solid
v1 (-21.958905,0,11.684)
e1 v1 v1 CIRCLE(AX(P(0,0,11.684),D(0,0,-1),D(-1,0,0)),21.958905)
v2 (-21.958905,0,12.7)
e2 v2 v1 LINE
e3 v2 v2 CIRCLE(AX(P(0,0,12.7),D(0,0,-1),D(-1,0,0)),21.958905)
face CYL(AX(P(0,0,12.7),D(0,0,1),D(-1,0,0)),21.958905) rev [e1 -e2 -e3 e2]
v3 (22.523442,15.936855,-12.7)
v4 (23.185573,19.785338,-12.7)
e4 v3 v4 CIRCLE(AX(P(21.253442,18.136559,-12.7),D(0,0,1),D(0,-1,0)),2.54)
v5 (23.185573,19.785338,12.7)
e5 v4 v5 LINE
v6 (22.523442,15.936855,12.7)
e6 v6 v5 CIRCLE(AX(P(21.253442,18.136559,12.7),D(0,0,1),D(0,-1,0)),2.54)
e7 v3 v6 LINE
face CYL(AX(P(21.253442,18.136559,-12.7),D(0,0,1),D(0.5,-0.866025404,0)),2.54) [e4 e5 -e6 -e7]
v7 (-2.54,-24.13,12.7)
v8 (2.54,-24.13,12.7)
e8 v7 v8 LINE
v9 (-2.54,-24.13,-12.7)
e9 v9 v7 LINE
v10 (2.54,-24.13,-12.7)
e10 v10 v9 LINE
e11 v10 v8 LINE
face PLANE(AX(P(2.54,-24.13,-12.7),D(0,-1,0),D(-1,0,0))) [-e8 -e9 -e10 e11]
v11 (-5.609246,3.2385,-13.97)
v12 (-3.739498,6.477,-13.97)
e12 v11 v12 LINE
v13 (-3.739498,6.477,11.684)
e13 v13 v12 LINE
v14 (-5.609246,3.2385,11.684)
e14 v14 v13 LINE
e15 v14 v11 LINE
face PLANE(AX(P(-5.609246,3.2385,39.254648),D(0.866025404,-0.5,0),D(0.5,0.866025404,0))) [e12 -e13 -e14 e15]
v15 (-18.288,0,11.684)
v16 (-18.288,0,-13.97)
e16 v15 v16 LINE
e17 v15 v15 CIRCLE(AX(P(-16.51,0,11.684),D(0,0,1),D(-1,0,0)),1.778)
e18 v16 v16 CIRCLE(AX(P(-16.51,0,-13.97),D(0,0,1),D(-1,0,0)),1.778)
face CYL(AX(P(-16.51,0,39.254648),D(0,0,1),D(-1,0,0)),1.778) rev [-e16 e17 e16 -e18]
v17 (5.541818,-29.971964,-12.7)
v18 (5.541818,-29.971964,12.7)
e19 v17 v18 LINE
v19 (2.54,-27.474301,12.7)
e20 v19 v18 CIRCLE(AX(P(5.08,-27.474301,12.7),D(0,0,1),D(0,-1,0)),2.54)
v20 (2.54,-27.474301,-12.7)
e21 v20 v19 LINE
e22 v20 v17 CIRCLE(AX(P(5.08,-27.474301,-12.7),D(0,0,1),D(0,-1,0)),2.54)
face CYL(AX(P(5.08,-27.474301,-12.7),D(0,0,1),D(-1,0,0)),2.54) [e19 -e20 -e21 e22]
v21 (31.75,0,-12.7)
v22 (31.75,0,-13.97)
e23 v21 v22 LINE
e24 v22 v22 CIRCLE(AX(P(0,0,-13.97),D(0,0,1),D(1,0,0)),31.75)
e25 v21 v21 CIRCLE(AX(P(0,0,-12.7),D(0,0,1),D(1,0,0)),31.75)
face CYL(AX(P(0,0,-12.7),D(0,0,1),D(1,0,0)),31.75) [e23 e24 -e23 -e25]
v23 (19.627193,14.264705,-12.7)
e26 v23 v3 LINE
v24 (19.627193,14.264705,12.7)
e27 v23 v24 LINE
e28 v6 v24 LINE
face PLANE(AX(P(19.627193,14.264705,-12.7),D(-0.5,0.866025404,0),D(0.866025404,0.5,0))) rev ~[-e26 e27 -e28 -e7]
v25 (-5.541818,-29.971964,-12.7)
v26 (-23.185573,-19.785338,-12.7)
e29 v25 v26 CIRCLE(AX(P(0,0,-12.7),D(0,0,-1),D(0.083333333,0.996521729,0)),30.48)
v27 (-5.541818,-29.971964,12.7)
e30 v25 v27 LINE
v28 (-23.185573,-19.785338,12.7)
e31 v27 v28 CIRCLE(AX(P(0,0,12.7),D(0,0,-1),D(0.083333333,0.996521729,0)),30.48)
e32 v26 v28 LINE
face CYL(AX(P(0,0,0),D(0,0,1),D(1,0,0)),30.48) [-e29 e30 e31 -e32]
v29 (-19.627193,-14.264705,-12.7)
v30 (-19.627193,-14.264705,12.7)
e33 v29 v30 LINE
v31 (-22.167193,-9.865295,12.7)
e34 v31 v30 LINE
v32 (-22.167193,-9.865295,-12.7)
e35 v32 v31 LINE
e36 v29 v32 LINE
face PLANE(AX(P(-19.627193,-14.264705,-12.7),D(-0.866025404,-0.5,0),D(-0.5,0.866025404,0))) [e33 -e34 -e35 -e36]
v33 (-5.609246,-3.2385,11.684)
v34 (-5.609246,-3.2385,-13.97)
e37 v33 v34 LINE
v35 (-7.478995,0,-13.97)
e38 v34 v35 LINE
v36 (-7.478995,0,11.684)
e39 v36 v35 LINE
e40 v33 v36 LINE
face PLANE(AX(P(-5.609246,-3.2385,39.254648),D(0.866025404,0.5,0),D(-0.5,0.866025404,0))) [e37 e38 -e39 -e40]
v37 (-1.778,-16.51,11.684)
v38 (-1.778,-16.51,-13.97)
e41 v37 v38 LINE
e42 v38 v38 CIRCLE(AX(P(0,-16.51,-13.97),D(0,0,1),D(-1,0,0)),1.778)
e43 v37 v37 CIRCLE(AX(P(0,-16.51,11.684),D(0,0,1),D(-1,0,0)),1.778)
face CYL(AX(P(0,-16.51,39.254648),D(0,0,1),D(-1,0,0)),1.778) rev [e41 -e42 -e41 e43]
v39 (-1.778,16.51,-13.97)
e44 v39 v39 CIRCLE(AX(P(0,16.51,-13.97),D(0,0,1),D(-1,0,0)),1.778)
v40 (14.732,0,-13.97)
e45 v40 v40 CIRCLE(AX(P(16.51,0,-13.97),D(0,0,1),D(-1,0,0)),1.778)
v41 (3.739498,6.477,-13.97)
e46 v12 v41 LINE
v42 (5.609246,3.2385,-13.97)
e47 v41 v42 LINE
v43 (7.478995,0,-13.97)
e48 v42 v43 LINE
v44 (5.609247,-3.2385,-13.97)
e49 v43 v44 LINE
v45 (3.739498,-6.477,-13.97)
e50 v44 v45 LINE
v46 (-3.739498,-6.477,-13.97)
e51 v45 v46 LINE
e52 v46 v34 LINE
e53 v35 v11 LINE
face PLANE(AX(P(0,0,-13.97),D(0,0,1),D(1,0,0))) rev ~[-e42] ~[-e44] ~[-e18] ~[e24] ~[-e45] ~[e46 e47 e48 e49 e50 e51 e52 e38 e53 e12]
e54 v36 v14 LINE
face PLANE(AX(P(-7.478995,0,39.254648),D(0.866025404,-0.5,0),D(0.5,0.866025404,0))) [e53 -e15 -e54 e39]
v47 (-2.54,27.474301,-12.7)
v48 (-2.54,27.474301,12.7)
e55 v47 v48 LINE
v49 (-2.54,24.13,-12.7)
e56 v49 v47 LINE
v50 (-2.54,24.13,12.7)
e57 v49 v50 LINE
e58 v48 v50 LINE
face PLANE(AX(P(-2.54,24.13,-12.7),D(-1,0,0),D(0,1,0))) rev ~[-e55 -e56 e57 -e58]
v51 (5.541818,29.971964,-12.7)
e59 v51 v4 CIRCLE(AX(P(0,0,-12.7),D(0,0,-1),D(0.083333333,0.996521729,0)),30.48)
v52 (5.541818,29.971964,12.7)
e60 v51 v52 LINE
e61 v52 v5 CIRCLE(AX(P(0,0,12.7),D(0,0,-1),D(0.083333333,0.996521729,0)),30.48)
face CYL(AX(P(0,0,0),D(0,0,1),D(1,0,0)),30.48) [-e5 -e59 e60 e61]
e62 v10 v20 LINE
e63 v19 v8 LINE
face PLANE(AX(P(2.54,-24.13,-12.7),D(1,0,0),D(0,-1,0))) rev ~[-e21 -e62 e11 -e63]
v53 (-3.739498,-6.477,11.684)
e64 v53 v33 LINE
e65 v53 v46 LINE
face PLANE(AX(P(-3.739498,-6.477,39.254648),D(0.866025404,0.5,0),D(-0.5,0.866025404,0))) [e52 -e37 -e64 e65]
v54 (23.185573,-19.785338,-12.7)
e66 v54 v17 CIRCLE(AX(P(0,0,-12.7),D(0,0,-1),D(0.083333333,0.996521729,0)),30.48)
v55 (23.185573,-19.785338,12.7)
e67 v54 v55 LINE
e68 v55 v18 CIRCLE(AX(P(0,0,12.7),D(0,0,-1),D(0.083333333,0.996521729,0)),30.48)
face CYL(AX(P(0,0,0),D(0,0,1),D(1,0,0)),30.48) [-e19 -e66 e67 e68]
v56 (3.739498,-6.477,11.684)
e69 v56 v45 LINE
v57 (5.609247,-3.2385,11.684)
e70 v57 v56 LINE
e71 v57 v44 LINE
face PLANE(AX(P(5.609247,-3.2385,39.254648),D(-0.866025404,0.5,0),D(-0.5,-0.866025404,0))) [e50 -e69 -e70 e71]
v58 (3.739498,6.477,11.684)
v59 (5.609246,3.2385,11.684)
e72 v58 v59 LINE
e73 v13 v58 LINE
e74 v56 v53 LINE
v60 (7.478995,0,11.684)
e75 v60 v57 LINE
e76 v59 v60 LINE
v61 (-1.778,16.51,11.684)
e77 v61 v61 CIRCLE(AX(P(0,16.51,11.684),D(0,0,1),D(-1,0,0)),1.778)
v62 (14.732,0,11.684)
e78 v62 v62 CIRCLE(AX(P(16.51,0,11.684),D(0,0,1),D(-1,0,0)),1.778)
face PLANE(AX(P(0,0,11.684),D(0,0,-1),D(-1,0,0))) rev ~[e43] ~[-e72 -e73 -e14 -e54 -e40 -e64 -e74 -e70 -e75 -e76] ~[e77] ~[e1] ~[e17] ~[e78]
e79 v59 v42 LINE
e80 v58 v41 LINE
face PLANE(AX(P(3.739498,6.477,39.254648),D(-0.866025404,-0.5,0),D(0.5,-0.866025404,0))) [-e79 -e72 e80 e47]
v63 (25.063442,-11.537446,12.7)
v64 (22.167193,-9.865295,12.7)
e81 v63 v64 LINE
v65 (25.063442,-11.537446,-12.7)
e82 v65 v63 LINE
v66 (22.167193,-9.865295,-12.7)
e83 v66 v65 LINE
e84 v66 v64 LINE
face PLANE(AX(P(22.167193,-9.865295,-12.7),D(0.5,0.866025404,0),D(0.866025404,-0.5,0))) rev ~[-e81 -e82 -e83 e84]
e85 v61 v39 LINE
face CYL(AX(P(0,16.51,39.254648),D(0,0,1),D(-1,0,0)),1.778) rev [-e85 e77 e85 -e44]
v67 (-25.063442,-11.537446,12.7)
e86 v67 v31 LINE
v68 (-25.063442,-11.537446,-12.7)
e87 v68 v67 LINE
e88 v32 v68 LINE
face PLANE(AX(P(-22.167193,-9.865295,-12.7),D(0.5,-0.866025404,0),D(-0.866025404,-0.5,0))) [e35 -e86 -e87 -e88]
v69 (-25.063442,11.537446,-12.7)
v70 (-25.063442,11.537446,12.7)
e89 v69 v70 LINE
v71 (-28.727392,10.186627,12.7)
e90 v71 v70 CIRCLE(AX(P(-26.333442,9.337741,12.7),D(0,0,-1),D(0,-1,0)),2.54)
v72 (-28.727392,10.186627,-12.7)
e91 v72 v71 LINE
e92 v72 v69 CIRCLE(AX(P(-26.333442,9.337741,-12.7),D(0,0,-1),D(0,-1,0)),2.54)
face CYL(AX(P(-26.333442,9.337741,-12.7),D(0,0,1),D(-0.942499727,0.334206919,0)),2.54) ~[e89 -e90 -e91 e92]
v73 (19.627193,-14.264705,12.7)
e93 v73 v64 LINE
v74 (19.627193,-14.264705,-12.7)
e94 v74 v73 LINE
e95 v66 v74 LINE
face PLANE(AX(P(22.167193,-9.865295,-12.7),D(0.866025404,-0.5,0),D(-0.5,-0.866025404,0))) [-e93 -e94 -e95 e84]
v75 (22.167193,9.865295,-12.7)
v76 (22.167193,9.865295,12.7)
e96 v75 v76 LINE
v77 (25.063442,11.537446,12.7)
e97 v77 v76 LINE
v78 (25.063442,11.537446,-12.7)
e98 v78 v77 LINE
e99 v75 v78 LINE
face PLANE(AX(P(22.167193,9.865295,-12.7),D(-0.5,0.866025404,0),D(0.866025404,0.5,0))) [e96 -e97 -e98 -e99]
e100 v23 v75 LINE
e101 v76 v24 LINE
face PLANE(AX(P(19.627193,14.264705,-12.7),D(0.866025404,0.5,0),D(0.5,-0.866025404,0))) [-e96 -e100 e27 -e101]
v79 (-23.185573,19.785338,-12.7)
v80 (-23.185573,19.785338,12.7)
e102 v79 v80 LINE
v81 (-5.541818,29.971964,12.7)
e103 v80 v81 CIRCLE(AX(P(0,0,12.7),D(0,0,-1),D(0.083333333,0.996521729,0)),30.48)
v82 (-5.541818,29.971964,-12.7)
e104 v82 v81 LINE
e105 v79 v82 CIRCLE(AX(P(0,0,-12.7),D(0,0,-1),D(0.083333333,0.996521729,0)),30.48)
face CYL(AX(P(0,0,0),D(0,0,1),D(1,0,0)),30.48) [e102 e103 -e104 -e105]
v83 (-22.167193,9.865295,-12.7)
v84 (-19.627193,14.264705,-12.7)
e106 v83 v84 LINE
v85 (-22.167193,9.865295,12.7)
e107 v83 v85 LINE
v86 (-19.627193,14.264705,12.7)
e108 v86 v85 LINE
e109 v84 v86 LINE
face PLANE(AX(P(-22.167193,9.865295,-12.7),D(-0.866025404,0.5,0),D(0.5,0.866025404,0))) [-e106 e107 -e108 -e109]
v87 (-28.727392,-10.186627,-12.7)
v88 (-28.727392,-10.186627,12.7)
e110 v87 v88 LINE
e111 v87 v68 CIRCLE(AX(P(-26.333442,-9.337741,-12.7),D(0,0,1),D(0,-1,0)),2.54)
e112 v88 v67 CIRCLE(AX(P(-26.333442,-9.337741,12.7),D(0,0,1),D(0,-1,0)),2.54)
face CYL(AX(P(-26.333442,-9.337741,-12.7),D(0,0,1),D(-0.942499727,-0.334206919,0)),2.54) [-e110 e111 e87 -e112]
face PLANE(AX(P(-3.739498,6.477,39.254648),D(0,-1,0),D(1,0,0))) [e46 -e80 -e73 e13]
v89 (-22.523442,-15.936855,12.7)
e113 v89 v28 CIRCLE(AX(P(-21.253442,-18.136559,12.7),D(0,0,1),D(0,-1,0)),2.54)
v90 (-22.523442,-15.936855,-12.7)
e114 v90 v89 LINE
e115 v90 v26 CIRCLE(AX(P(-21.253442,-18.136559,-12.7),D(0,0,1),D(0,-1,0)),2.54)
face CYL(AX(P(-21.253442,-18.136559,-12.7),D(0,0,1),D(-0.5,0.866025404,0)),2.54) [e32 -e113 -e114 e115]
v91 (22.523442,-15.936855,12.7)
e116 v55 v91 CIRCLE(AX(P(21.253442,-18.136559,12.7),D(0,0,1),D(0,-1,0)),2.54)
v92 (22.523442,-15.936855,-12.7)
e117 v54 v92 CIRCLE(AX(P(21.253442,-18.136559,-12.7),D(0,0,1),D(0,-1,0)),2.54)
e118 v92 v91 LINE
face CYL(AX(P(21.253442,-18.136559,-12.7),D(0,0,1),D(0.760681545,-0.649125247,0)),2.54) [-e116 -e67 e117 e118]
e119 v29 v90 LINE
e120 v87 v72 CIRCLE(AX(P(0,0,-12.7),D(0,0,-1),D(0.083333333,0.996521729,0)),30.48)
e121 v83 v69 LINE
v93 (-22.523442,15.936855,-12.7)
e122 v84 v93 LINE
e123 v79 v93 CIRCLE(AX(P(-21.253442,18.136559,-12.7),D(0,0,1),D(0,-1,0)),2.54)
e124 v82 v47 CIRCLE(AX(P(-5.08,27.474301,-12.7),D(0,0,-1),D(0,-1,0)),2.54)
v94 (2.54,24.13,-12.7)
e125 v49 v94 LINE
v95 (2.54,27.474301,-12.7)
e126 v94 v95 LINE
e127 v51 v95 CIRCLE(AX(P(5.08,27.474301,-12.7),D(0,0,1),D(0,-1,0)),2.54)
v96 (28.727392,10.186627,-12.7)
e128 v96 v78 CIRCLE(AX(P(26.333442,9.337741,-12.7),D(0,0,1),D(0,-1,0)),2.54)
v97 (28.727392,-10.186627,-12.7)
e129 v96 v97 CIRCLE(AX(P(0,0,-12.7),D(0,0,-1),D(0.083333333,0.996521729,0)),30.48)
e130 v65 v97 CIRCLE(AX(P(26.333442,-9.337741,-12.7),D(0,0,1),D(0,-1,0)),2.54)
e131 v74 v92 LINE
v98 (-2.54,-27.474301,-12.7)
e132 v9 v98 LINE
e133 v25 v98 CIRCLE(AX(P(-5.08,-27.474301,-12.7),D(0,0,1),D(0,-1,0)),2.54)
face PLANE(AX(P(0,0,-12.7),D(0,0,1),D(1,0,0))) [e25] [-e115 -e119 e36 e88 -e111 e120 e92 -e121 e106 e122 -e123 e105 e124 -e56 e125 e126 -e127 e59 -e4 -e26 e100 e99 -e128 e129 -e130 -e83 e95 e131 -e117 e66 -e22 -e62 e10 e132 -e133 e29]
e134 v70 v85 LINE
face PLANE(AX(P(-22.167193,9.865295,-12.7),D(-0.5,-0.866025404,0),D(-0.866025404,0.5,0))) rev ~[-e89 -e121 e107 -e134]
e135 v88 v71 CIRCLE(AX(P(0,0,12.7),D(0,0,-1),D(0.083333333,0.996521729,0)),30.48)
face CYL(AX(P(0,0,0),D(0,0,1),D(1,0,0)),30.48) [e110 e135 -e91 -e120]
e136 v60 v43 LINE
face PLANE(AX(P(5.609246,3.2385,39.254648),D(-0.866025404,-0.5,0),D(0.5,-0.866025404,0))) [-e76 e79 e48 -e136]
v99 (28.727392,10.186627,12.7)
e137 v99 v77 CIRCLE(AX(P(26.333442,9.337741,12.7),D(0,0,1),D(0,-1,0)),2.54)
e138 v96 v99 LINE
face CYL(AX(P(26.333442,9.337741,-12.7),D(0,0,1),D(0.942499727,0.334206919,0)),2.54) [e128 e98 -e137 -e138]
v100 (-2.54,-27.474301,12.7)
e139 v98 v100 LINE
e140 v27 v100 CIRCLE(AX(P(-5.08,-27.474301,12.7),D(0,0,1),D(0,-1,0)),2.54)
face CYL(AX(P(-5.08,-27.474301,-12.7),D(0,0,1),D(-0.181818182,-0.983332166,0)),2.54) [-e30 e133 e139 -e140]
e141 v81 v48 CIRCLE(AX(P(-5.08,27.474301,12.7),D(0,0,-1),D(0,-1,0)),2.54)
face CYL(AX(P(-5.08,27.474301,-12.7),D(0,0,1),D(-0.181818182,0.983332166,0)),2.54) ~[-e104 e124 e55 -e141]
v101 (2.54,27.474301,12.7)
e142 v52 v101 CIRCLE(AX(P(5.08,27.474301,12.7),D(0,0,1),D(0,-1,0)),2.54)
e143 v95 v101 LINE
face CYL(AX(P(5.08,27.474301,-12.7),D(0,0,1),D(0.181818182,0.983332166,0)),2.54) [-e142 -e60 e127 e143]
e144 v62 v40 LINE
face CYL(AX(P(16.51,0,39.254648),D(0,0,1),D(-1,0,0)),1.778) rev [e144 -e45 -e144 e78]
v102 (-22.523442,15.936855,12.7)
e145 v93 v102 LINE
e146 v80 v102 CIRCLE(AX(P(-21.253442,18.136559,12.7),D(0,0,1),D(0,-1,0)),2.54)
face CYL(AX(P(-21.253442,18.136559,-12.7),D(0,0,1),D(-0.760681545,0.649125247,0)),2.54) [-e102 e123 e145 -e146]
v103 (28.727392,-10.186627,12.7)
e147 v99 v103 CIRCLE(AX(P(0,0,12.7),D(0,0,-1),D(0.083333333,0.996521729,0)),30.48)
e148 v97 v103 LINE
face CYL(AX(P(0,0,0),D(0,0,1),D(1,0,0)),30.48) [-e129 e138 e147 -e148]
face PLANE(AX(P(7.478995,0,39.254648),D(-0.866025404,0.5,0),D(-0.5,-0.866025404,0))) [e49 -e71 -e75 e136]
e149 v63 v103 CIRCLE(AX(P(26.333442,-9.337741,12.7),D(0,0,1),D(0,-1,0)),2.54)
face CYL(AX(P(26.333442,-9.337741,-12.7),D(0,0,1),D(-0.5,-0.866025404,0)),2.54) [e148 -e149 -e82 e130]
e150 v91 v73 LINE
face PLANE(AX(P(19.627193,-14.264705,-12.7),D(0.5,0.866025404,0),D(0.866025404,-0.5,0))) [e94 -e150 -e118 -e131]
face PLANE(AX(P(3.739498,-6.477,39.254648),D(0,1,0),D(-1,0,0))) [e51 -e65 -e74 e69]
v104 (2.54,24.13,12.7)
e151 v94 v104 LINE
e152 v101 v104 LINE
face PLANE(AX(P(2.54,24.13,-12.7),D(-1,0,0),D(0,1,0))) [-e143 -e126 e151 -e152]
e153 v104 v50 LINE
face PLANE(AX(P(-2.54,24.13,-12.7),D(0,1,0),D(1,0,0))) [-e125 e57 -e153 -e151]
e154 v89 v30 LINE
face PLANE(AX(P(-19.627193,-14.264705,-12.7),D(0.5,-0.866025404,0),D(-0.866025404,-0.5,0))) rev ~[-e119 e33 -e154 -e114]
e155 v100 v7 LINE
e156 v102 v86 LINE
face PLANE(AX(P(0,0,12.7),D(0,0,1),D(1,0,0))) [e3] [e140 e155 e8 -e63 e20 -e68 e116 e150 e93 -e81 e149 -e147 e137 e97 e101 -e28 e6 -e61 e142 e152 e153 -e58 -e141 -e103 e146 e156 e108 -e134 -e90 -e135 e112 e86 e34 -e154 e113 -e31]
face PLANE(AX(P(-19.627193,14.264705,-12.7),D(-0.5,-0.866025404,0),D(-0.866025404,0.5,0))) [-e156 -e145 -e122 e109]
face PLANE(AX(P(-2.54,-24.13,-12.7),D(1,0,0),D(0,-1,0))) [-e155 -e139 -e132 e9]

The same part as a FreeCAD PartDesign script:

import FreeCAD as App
import Part
import Sketcher

V = App.Vector
Q = App.Units.Quantity


def edges_at(feature, points):
    """Names of the edges that pass closest to the given points."""
    edges = feature.Shape.Edges
    near = lambda p: min(range(len(edges)), key=lambda i: edges[i].distToShape(Part.Vertex(*p))[0])
    return sorted({f"Edge{near(p) + 1}" for p in points})


def add_polygon(sketch, points):
    """Adds a closed chain of lines whose ends are joined by coincident constraints."""
    first, n = sketch.GeometryCount, len(points)
    for a, b in zip(points, points[1:] + points[:1]):
        sketch.addGeometry(Part.LineSegment(App.Vector(*a, 0), App.Vector(*b, 0)), False)
    for i in range(n):
        sketch.addConstraint(Sketcher.Constraint("Coincident", first + i, 2, first + (i + 1) % n, 1))

doc = App.newDocument("Part")
params = doc.addObject("Spreadsheet::Sheet", "Params")
for row, (alias, value) in enumerate([
    ("sketch1_diameter", "2.4 in"),
    ("pad1_length", "1 in"),
    ("sketch2_diameter", "2.5 in"),
    ("pad2_length", "0.05 in"),
    ("sketch3_width", "0.2 in"),
    ("sketch3_height", "0.3 in"),
    ("fillet_radius", "0.1 in"),
    ("fillet2_radius", "0.1 in"),
    ("sketch5_diameter", "0.14 in"),
    ("pocket4_length", "0.04 in"),
], start=1):
    params.set(f"A{row}", alias)
    params.set(f"B{row}", "=" + value)
    params.setAlias(f"B{row}", alias)

body = doc.addObject("PartDesign::Body", "Body")

sketch1 = body.newObject("Sketcher::SketchObject", "Sketch")
sketch1.AttachmentSupport = (doc.getObject("XY_Plane"), [""])
sketch1.MapMode = "FlatFace"
sketch1.addGeometry(Part.Circle(V(0, 0, 0), V(0, 0, 1), 30.48), False)
sketch1.addConstraint([
    Sketcher.Constraint("Coincident", 0, 3, -1, 1),
    Sketcher.Constraint("Diameter", 0, Q("2.4 in")),
])
sketch1.setExpression("Constraints[1]", "Params.sketch1_diameter")
pad1 = body.newObject("PartDesign::Pad", "Pad")
pad1.Profile = sketch1
pad1.setExpression("Length", "Params.pad1_length")
pad1.Midplane = True

sketch2 = body.newObject("Sketcher::SketchObject", "Sketch001")
sketch2.AttachmentSupport = (doc.getObject("XY_Plane"), [""])
sketch2.MapMode = "FlatFace"
sketch2.AttachmentOffset = App.Placement(V(0, 0, -0.5 * 25.4), App.Rotation())
sketch2.addGeometry(Part.Circle(V(0, 0, 0), V(0, 0, 1), 31.75), False)
sketch2.addConstraint([
    Sketcher.Constraint("Coincident", 0, 3, -1, 1),
    Sketcher.Constraint("Diameter", 0, Q("2.5 in")),
])
sketch2.setExpression("Constraints[1]", "Params.sketch2_diameter")
pad2 = body.newObject("PartDesign::Pad", "Pad001")
pad2.Profile = sketch2
pad2.setExpression("Length", "Params.pad2_length")
pad2.Reversed = True

sketch3 = body.newObject("Sketcher::SketchObject", "Sketch002")
sketch3.AttachmentSupport = (doc.getObject("XY_Plane"), [""])
sketch3.MapMode = "FlatFace"
sketch3.AttachmentOffset = App.Placement(V(0, 0, -0.5 * 25.4), App.Rotation())
add_polygon(sketch3, [(-2.54, 31.75), (-2.54, 24.13), (2.54, 24.13), (2.54, 31.75)])
sketch3.addConstraint([
    Sketcher.Constraint("Vertical", 0),
    Sketcher.Constraint("Horizontal", 1),
    Sketcher.Constraint("Vertical", 2),
    Sketcher.Constraint("Horizontal", 3),
    Sketcher.Constraint("DistanceX", 1, 1, 1, 2, Q("0.2 in")),
    Sketcher.Constraint("DistanceY", 0, 2, 0, 1, Q("0.3 in")),
    Sketcher.Constraint("DistanceX", 0, 2, -1, 1, Q("0.1 in")),
    Sketcher.Constraint("DistanceY", -1, 1, 0, 2, Q("0.95 in")),
])
sketch3.setExpression("Constraints[8]", "Params.sketch3_width")
sketch3.setExpression("Constraints[9]", "Params.sketch3_height")
pocket1 = body.newObject("PartDesign::Pocket", "Pocket")
pocket1.Profile = sketch3
pocket1.Type = "ThroughAll"
pocket1.Reversed = True
doc.recompute()

fillet = body.newObject("PartDesign::Fillet", "Fillet")
fillet.Base = (pocket1, edges_at(pocket1, [(-2.54, 30.374, 0), (2.54, 30.374, 0)]))
fillet.setExpression("Radius", "Params.fillet_radius")
doc.recompute()

polarpattern = body.newObject("PartDesign::PolarPattern", "PolarPattern")
polarpattern.Originals = [pocket1]
polarpattern.Axis = (doc.getObject("Z_Axis"), [""])
polarpattern.Angle = 360
polarpattern.Occurrences = 6
body.Tip = polarpattern
doc.recompute()

fillet2 = body.newObject("PartDesign::Fillet", "Fillet001")
fillet2.Base = (polarpattern, edges_at(polarpattern, [
    (-27.575, 12.987, 0),
    (-25.035, 17.387, 0),
    (-25.035, -17.387, 0),
    (-27.575, -12.987, 0),
    (2.54, -30.374, 0),
    (-2.54, -30.374, 0),
    (27.575, -12.987, 0),
    (25.035, -17.387, 0),
    (25.035, 17.387, 0),
    (27.575, 12.987, 0),
]))
fillet2.setExpression("Radius", "Params.fillet2_radius")

sketch4 = body.newObject("Sketcher::SketchObject", "Sketch003")
sketch4.AttachmentSupport = (doc.getObject("XY_Plane"), [""])
sketch4.MapMode = "FlatFace"
sketch4.AttachmentOffset = App.Placement(V(0, 0, -0.55 * 25.4), App.Rotation())
add_polygon(sketch4, [(5.609246, 3.2385), (7.478995, 0), (5.609247, -3.2385), (3.739498, -6.477), (-3.739498, -6.477), (-5.609246, -3.2385), (-7.478995, 0), (-5.609246, 3.2385), (-3.739498, 6.477), (3.739498, 6.477)])
sketch4.addConstraint([
    Sketcher.Constraint("Horizontal", 3),
    Sketcher.Constraint("Horizontal", 8),
    Sketcher.Constraint("Symmetric", 0, 2, 5, 2, -1, 1),
    Sketcher.Constraint("Symmetric", 1, 2, 6, 2, -1, 1),
    Sketcher.Constraint("Symmetric", 2, 2, 7, 2, -1, 1),
    Sketcher.Constraint("Symmetric", 4, 2, 9, 2, -1, 1),
    Sketcher.Constraint("Symmetric", 1, 2, 4, 2, -2),
    Sketcher.Constraint("PointOnObject", 0, 2, -1),
    Sketcher.Constraint("Parallel", 1, 2),
    Sketcher.Constraint("Parallel", 0, 4),
    Sketcher.Constraint("Parallel", 5, 9),
    Sketcher.Constraint("Equal", 1, 2),
    Sketcher.Constraint("Angle", 0, Q("-60 deg")),
    Sketcher.Constraint("DistanceY", 3, 2, 7, 2, Q("0.51 in")),
    Sketcher.Constraint("DistanceX", 3, 2, 3, 1, 7.478995),
])
pocket2 = body.newObject("PartDesign::Pocket", "Pocket001")
pocket2.Profile = sketch4
pocket2.Type = "ThroughAll"
pocket2.Midplane = True

sketch5 = body.newObject("Sketcher::SketchObject", "Sketch004")
sketch5.AttachmentSupport = (doc.getObject("XY_Plane"), [""])
sketch5.MapMode = "FlatFace"
sketch5.AttachmentOffset = App.Placement(V(0, 0, -0.55 * 25.4), App.Rotation())
sketch5.addGeometry([
    Part.Circle(V(16.51, 0, 0), V(0, 0, 1), 1.778),
    Part.Circle(V(0, 16.51, 0), V(0, 0, 1), 1.778),
    Part.Circle(V(-16.51, 0, 0), V(0, 0, 1), 1.778),
    Part.Circle(V(0, -16.51, 0), V(0, 0, 1), 1.778),
], False)
sketch5.addConstraint([
    Sketcher.Constraint("Equal", 0, 1),
    Sketcher.Constraint("Equal", 1, 2),
    Sketcher.Constraint("Equal", 2, 3),
    Sketcher.Constraint("Symmetric", 0, 3, 2, 3, -1, 1),
    Sketcher.Constraint("Symmetric", 1, 3, 3, 3, -1, 1),
    Sketcher.Constraint("PointOnObject", 0, 3, -1),
    Sketcher.Constraint("PointOnObject", 1, 3, -2),
    Sketcher.Constraint("Diameter", 0, Q("0.14 in")),
    Sketcher.Constraint("DistanceX", 2, 3, 0, 3, Q("1.3 in")),
    Sketcher.Constraint("DistanceY", 3, 3, 1, 3, Q("1.3 in")),
])
sketch5.setExpression("Constraints[7]", "Params.sketch5_diameter")
pocket3 = body.newObject("PartDesign::Pocket", "Pocket002")
pocket3.Profile = sketch5
pocket3.Type = "ThroughAll"
pocket3.Midplane = True

sketch6 = body.newObject("Sketcher::SketchObject", "Sketch005")
sketch6.AttachmentSupport = (doc.getObject("XY_Plane"), [""])
sketch6.MapMode = "FlatFace"
sketch6.AttachmentOffset = App.Placement(V(0, 0, 0.5 * 25.4), App.Rotation())
sketch6.addGeometry(Part.Circle(V(0, 0, 0), V(0, 0, 1), 21.958905), False)
sketch6.addConstraint([
    Sketcher.Constraint("Coincident", 0, 3, -1, 1),
    Sketcher.Constraint("Diameter", 0, 43.91781),
])
pocket4 = body.newObject("PartDesign::Pocket", "Pocket003")
pocket4.Profile = sketch6
pocket4.setExpression("Length", "Params.pocket4_length")

doc.recompute()
